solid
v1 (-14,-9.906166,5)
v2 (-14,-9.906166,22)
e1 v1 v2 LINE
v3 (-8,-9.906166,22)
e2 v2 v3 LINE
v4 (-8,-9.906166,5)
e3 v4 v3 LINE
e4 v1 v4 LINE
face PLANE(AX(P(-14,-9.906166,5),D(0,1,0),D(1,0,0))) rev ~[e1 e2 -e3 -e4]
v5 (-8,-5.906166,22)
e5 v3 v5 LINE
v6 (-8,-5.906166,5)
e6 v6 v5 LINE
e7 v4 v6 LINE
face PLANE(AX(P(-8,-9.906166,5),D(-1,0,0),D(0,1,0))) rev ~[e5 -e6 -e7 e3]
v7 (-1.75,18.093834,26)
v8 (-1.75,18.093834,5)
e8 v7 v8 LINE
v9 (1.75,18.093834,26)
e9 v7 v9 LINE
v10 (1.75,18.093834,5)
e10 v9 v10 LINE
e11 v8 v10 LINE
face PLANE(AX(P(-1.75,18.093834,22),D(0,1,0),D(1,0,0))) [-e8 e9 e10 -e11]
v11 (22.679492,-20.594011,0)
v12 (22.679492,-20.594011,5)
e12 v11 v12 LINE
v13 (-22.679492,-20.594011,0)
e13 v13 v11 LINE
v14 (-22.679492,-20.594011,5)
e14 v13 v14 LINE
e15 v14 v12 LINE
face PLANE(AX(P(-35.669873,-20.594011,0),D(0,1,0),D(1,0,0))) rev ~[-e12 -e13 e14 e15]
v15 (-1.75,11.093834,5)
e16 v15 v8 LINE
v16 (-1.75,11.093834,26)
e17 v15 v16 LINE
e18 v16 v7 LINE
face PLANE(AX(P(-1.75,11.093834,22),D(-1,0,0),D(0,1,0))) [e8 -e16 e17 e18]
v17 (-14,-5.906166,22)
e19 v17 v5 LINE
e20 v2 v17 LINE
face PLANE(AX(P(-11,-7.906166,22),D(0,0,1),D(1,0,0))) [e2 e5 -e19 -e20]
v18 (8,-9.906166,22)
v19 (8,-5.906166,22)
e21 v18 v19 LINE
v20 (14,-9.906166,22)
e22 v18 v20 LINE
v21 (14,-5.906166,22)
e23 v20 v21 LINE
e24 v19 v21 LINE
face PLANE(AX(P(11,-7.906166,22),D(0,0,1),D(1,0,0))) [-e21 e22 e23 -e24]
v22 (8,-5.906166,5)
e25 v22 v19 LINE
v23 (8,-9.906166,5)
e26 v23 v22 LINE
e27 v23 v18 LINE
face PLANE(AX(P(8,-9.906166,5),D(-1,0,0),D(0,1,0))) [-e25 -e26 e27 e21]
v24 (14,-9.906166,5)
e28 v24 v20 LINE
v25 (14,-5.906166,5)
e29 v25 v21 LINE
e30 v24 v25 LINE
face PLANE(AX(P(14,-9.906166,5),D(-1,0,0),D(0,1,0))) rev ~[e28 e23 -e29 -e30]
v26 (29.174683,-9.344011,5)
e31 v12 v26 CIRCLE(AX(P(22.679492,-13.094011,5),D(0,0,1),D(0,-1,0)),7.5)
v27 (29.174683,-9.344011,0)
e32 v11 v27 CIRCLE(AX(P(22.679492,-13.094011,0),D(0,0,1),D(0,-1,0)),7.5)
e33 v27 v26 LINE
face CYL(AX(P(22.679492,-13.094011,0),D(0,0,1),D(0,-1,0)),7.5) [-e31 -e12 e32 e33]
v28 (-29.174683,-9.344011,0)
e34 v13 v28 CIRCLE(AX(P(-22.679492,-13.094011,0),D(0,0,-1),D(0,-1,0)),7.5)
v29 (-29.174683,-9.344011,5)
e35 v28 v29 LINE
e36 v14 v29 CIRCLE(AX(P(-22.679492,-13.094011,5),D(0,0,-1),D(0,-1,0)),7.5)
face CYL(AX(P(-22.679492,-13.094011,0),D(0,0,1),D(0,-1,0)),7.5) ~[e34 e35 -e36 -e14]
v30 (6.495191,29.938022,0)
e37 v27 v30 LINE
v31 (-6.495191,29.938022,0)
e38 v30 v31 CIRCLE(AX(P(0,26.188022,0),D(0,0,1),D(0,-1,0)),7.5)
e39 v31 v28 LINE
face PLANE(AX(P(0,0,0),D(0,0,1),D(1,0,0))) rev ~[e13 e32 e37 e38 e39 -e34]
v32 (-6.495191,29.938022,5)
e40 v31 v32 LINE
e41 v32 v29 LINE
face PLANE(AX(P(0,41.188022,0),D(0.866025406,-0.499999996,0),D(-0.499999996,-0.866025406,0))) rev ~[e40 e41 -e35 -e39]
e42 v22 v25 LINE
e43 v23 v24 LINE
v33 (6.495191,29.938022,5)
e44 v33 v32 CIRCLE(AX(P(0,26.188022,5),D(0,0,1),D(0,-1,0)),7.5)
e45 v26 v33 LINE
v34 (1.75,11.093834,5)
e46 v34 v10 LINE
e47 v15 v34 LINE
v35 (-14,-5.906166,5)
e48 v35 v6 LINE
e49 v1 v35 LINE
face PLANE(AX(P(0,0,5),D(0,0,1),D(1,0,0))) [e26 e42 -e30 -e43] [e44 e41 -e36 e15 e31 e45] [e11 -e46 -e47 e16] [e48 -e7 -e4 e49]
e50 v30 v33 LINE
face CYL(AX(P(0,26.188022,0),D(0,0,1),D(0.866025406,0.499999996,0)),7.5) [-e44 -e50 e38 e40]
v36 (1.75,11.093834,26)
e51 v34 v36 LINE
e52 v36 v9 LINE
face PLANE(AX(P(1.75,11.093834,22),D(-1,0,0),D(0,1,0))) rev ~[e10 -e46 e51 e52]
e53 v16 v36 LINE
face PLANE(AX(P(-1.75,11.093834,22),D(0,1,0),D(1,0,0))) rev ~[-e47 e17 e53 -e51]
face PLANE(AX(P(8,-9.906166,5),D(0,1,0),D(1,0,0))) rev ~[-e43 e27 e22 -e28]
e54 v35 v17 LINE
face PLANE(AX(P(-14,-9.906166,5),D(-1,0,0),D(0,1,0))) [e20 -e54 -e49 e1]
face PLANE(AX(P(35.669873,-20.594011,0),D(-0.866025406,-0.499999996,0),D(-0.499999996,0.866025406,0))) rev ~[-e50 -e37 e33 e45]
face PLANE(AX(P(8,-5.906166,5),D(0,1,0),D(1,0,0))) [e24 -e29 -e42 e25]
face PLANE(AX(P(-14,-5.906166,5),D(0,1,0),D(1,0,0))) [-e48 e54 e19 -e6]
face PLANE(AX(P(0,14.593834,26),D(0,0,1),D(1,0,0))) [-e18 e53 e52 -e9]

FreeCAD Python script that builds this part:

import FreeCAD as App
import Part
import Sketcher

V = App.Vector
Q = App.Units.Quantity


def edges_at(feature, points):
    """Names of the edges that pass closest to the given points."""
    edges = feature.Shape.Edges
    near = lambda p: min(range(len(edges)), key=lambda i: edges[i].distToShape(Part.Vertex(*p))[0])
    return sorted({f"Edge{near(p) + 1}" for p in points})

doc = App.newDocument("Part")
body = doc.addObject("PartDesign::Body", "Body")

# Sketch on XY plane
sketch1 = body.newObject("Sketcher::SketchObject", "Sketch")
sketch1.AttachmentSupport = (doc.getObject("XY_Plane"), [""])
sketch1.MapMode = "FlatFace"
sketch1.addGeometry([
    Part.LineSegment(V(-36, -21, 0), V(36, -21, 0)),
    Part.LineSegment(V(36, -21, 0), V(0, 41, 0)),
    Part.LineSegment(V(0, 41, 0), V(-36, -21, 0)),
], False)
sketch1.addConstraint([
    Sketcher.Constraint("Coincident", 0, 2, 1, 1),
    Sketcher.Constraint("Coincident", 1, 2, 2, 1),
    Sketcher.Constraint("Coincident", 2, 2, 0, 1),
    Sketcher.Constraint("Horizontal", 0),
    Sketcher.Constraint("PointOnObject", 1, 2, -2),
    Sketcher.Constraint("Equal", 1, 2),
    Sketcher.Constraint("Angle", 1, Q("120 deg")),
    Sketcher.Constraint("DistanceX", 0, 1, 0, 2, 71.339746),
    Sketcher.Constraint("DistanceY", 0, 2, -1, 1, 20.594011),
])
pad1 = body.newObject("PartDesign::Pad", "Pad")
pad1.Profile = sketch1
pad1.Length = 5
doc.recompute()

fillet = body.newObject("PartDesign::Fillet", "Fillet")
fillet.Base = (pad1, edges_at(pad1, [(35.67, -20.594, 2.5), (0, 41.188, 2.5), (-35.67, -20.594, 2.5)]))
fillet.Radius = 7.5

# Sketch on XY plane
sketch2 = body.newObject("Sketcher::SketchObject", "Sketch001")
sketch2.AttachmentSupport = (doc.getObject("XY_Plane"), [""])
sketch2.MapMode = "FlatFace"
sketch2.AttachmentOffset = App.Placement(V(0, 0, 5), App.Rotation())
sketch2.addGeometry([
    Part.LineSegment(V(-14, -5.9, 0), V(-14, -9.9, 0)),  # 0
    Part.LineSegment(V(-14, -9.9, 0), V(-8, -9.9, 0)),  # 1
    Part.LineSegment(V(-8, -9.9, 0), V(-8, -5.9, 0)),  # 2
    Part.LineSegment(V(-8, -5.9, 0), V(-14, -5.9, 0)),  # 3
    Part.LineSegment(V(8, -5.9, 0), V(8, -9.9, 0)),  # 4
    Part.LineSegment(V(8, -9.9, 0), V(14, -9.9, 0)),  # 5
    Part.LineSegment(V(14, -9.9, 0), V(14, -5.9, 0)),  # 6
    Part.LineSegment(V(14, -5.9, 0), V(8, -5.9, 0)),  # 7
    Part.LineSegment(V(-1.8, 18.1, 0), V(-1.8, 11.1, 0)),  # 8
    Part.LineSegment(V(-1.8, 11.1, 0), V(1.8, 11.1, 0)),  # 9
    Part.LineSegment(V(1.8, 11.1, 0), V(1.8, 18.1, 0)),  # 10
    Part.LineSegment(V(1.8, 18.1, 0), V(-1.8, 18.1, 0)),  # 11
], False)
sketch2.addConstraint([
    Sketcher.Constraint("Coincident", 0, 2, 1, 1),
    Sketcher.Constraint("Coincident", 1, 2, 2, 1),
    Sketcher.Constraint("Coincident", 2, 2, 3, 1),
    Sketcher.Constraint("Coincident", 3, 2, 0, 1),
    Sketcher.Constraint("Coincident", 4, 2, 5, 1),
    Sketcher.Constraint("Coincident", 5, 2, 6, 1),
    Sketcher.Constraint("Coincident", 6, 2, 7, 1),
    Sketcher.Constraint("Coincident", 7, 2, 4, 1),
    Sketcher.Constraint("Coincident", 8, 2, 9, 1),
    Sketcher.Constraint("Coincident", 9, 2, 10, 1),
    Sketcher.Constraint("Coincident", 10, 2, 11, 1),
    Sketcher.Constraint("Coincident", 11, 2, 8, 1),
    Sketcher.Constraint("Vertical", 0),
    Sketcher.Constraint("Horizontal", 1),
    Sketcher.Constraint("Vertical", 2),
    Sketcher.Constraint("Horizontal", 3),
    Sketcher.Constraint("Vertical", 4),
    Sketcher.Constraint("Horizontal", 5),
    Sketcher.Constraint("Vertical", 6),
    Sketcher.Constraint("Horizontal", 7),
    Sketcher.Constraint("Vertical", 8),
    Sketcher.Constraint("Horizontal", 9),
    Sketcher.Constraint("Vertical", 10),
    Sketcher.Constraint("Horizontal", 11),
    Sketcher.Constraint("Symmetric", 1, 2, 4, 2, -2),
    Sketcher.Constraint("Symmetric", 3, 2, 6, 2, -2),
    Sketcher.Constraint("DistanceX", 1, 1, 1, 2, 6.0),
    Sketcher.Constraint("DistanceY", 0, 2, 0, 1, 4.0),
    Sketcher.Constraint("DistanceY", 8, 2, 8, 1, 7.0),
    Sketcher.Constraint("DistanceX", 9, 1, 9, 2, 3.5),
    Sketcher.Constraint("DistanceX", 0, 2, -1, 1, 14.0),
    Sketcher.Constraint("DistanceY", 2, 2, 8, 2, 17.0),
    Sketcher.Constraint("DistanceX", 8, 2, -1, 1, 1.75),
    Sketcher.Constraint("DistanceY", 0, 2, -1, 1, 9.906166),
])
pad2 = body.newObject("PartDesign::Pad", "Pad001")
pad2.Profile = sketch2
pad2.Length = 17

# Sketch on XY plane
sketch3 = body.newObject("Sketcher::SketchObject", "Sketch002")
sketch3.AttachmentSupport = (doc.getObject("XY_Plane"), [""])
sketch3.MapMode = "FlatFace"
sketch3.AttachmentOffset = App.Placement(V(0, 0, 22), App.Rotation())
sketch3.addGeometry([
    Part.LineSegment(V(-1.8, 18.1, 0), V(-1.8, 11.1, 0)),
    Part.LineSegment(V(-1.8, 11.1, 0), V(1.8, 11.1, 0)),
    Part.LineSegment(V(1.8, 11.1, 0), V(1.8, 18.1, 0)),
    Part.LineSegment(V(1.8, 18.1, 0), V(-1.8, 18.1, 0)),
], False)
sketch3.addConstraint([
    Sketcher.Constraint("Coincident", 0, 2, 1, 1),
    Sketcher.Constraint("Coincident", 1, 2, 2, 1),
    Sketcher.Constraint("Coincident", 2, 2, 3, 1),
    Sketcher.Constraint("Coincident", 3, 2, 0, 1),
    Sketcher.Constraint("Vertical", 0),
    Sketcher.Constraint("Horizontal", 1),
    Sketcher.Constraint("Vertical", 2),
    Sketcher.Constraint("Horizontal", 3),
    Sketcher.Constraint("DistanceY", 0, 2, 0, 1, 7.0),
    Sketcher.Constraint("DistanceX", 1, 1, 1, 2, 3.5),
    Sketcher.Constraint("DistanceX", 0, 2, -1, 1, 1.75),
    Sketcher.Constraint("DistanceY", -1, 1, 0, 2, 11.093834),
])
pad3 = body.newObject("PartDesign::Pad", "Pad002")
pad3.Profile = sketch3
pad3.Length = 4

doc.recompute()
